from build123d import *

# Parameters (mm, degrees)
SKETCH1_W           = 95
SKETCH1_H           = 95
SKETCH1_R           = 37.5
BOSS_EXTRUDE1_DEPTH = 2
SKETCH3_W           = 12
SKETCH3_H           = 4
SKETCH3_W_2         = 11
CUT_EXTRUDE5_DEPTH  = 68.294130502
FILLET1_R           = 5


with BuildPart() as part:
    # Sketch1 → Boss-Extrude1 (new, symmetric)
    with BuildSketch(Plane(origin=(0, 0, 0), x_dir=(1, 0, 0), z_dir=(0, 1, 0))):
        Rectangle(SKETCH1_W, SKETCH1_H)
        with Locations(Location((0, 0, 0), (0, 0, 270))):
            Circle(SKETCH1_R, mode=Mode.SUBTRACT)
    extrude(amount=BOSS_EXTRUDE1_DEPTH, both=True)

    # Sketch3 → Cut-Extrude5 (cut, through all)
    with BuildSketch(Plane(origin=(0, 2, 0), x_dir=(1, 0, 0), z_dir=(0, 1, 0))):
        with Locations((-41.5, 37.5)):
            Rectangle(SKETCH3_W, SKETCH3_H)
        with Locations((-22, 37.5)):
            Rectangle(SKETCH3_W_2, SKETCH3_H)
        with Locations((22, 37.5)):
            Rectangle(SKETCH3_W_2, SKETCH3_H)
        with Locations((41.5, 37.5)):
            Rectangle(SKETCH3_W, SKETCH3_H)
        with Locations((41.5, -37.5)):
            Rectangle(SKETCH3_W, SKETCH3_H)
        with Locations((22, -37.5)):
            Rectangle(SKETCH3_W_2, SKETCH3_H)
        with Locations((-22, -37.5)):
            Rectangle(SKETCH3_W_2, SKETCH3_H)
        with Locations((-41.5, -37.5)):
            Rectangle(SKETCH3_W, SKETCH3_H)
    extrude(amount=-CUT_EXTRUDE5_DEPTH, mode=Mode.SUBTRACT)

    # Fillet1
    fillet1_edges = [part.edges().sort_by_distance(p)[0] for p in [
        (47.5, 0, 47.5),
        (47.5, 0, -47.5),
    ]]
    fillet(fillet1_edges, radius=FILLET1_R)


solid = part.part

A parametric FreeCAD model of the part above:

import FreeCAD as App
import Part
import Sketcher


def edges_at(feature, points):
    """Names of the edges that pass closest to the given points."""
    edges = feature.Shape.Edges
    near = lambda p: min(range(len(edges)), key=lambda i: edges[i].distToShape(Part.Vertex(*p))[0])
    return sorted({f"Edge{near(p) + 1}" for p in points})


def add_polygon(sketch, points):
    """Adds a closed chain of lines whose ends are joined by coincident constraints."""
    first, n = sketch.GeometryCount, len(points)
    for a, b in zip(points, points[1:] + points[:1]):
        sketch.addGeometry(Part.LineSegment(App.Vector(*a, 0), App.Vector(*b, 0)), False)
    for i in range(n):
        sketch.addConstraint(Sketcher.Constraint("Coincident", first + i, 2, first + (i + 1) % n, 1))

doc = App.newDocument("Part")
params = doc.addObject("Spreadsheet::Sheet", "Params")
for row, (alias, value) in enumerate([
    ("sketch1_diameter", "75 mm"),
    ("sketch1_width", "95 mm"),
    ("pad1_length", "4 mm"),
    ("sketch2_width", "12 mm"),
    ("sketch2_width2", "11 mm"),
    ("sketch2_height", "4 mm"),
    ("fillet_radius", "5 mm"),
], start=1):
    params.set(f"A{row}", alias)
    params.set(f"B{row}", "=" + value)
    params.setAlias(f"B{row}", alias)

body = doc.addObject("PartDesign::Body", "Body")

# Sketch on XZ plane
sketch1 = body.newObject("Sketcher::SketchObject", "Sketch")
sketch1.AttachmentSupport = (doc.getObject("XZ_Plane"), [""])
sketch1.MapMode = "FlatFace"
add_polygon(sketch1, [(-47.5, -47.5), (-47.5, 47.5), (47.5, 47.5), (47.5, -47.5)])  # lines 0-3
sketch1.addGeometry(Part.Circle(App.Vector(0, 0, 0), App.Vector(0, 0, 1), 37.5), False)  # 4
sketch1.addConstraint([
    Sketcher.Constraint("Vertical", 0),
    Sketcher.Constraint("Horizontal", 1),
    Sketcher.Constraint("Vertical", 2),
    Sketcher.Constraint("Horizontal", 3),
    Sketcher.Constraint("Coincident", 4, 3, -1, 1),
    Sketcher.Constraint("Symmetric", 0, 2, 2, 2, -1, 1),
    Sketcher.Constraint("Equal", 3, 0),
    Sketcher.Constraint("Diameter", 4, 75.0),
    Sketcher.Constraint("DistanceX", 1, 1, 1, 2, 95.0),
])
sketch1.setExpression("Constraints[11]", "Params.sketch1_diameter")
sketch1.setExpression("Constraints[12]", "Params.sketch1_width")
pad1 = body.newObject("PartDesign::Pad", "Pad")
pad1.Profile = sketch1
pad1.setExpression("Length", "Params.pad1_length")
pad1.Midplane = True

# Sketch on XZ plane
sketch2 = body.newObject("Sketcher::SketchObject", "Sketch001")
sketch2.AttachmentSupport = (doc.getObject("XZ_Plane"), [""])
sketch2.MapMode = "FlatFace"
sketch2.AttachmentOffset = App.Placement(App.Vector(0, 0, -2), App.Rotation())
add_polygon(sketch2, [(-47.5, -39.5), (-47.5, -35.5), (-35.5, -35.5), (-35.5, -39.5)])  # lines 0-3
add_polygon(sketch2, [(-27.5, -39.5), (-27.5, -35.5), (-16.5, -35.5), (-16.5, -39.5)])  # lines 4-7
add_polygon(sketch2, [(16.5, -39.5), (16.5, -35.5), (27.5, -35.5), (27.5, -39.5)])  # lines 8-11
add_polygon(sketch2, [(35.5, -39.5), (35.5, -35.5), (47.5, -35.5), (47.5, -39.5)])  # lines 12-15
add_polygon(sketch2, [(35.5, 35.5), (35.5, 39.5), (47.5, 39.5), (47.5, 35.5)])  # lines 16-19
add_polygon(sketch2, [(16.5, 35.5), (16.5, 39.5), (27.5, 39.5), (27.5, 35.5)])  # lines 20-23
add_polygon(sketch2, [(-27.5, 35.5), (-27.5, 39.5), (-16.5, 39.5), (-16.5, 35.5)])  # lines 24-27
add_polygon(sketch2, [(-47.5, 35.5), (-47.5, 39.5), (-35.5, 39.5), (-35.5, 35.5)])  # lines 28-31
sketch2.addConstraint([
    Sketcher.Constraint("Vertical", 0),
    Sketcher.Constraint("Horizontal", 1),
    Sketcher.Constraint("Vertical", 2),
    Sketcher.Constraint("Horizontal", 3),
    Sketcher.Constraint("Vertical", 4),
    Sketcher.Constraint("Horizontal", 5),
    Sketcher.Constraint("Vertical", 6),
    Sketcher.Constraint("Horizontal", 7),
    Sketcher.Constraint("Vertical", 8),
    Sketcher.Constraint("Horizontal", 9),
    Sketcher.Constraint("Vertical", 10),
    Sketcher.Constraint("Horizontal", 11),
    Sketcher.Constraint("Vertical", 12),
    Sketcher.Constraint("Horizontal", 13),
    Sketcher.Constraint("Vertical", 14),
    Sketcher.Constraint("Horizontal", 15),
    Sketcher.Constraint("Vertical", 16),
    Sketcher.Constraint("Horizontal", 17),
    Sketcher.Constraint("Vertical", 18),
    Sketcher.Constraint("Horizontal", 19),
    Sketcher.Constraint("Vertical", 20),
    Sketcher.Constraint("Horizontal", 21),
    Sketcher.Constraint("Vertical", 22),
    Sketcher.Constraint("Horizontal", 23),
    Sketcher.Constraint("Vertical", 24),
    Sketcher.Constraint("Horizontal", 25),
    Sketcher.Constraint("Vertical", 26),
    Sketcher.Constraint("Horizontal", 27),
    Sketcher.Constraint("Vertical", 28),
    Sketcher.Constraint("Horizontal", 29),
    Sketcher.Constraint("Vertical", 30),
    Sketcher.Constraint("Horizontal", 31),
    Sketcher.Constraint("Symmetric", 2, 2, 16, 2, -1, 1),
    Sketcher.Constraint("Symmetric", 0, 2, 18, 2, -1, 1),
    Sketcher.Constraint("Symmetric", 6, 2, 20, 2, -1, 1),
    Sketcher.Constraint("Symmetric", 4, 2, 22, 2, -1, 1),
    Sketcher.Constraint("Symmetric", 10, 2, 24, 2, -1, 1),
    Sketcher.Constraint("Symmetric", 8, 2, 26, 2, -1, 1),
    Sketcher.Constraint("Symmetric", 14, 2, 28, 2, -1, 1),
    Sketcher.Constraint("Symmetric", 12, 2, 30, 2, -1, 1),
    Sketcher.Constraint("Symmetric", 5, 2, 8, 2, -2),
    Sketcher.Constraint("Symmetric", 7, 2, 10, 2, -2),
    Sketcher.Constraint("Symmetric", 1, 2, 12, 2, -2),
    Sketcher.Constraint("Symmetric", 3, 2, 14, 2, -2),
    Sketcher.Constraint("Horizontal", 1, 2, 4, 2),
    Sketcher.Constraint("Horizontal", 3, 2, 6, 2),
    Sketcher.Constraint("DistanceX", 1, 1, 1, 2, 12.0),
    Sketcher.Constraint("DistanceX", 5, 1, 5, 2, 11.0),
    Sketcher.Constraint("DistanceY", 0, 1, 0, 2, 4.0),
    Sketcher.Constraint("DistanceX", 1, 2, 4, 2, 8.0),
    Sketcher.Constraint("DistanceX", 5, 2, 8, 2, 33.0),
    Sketcher.Constraint("DistanceY", 12, 2, 16, 2, 75.0),
])
sketch2.setExpression("Constraints[78]", "Params.sketch2_width")
sketch2.setExpression("Constraints[79]", "Params.sketch2_width2")
sketch2.setExpression("Constraints[80]", "Params.sketch2_height")
pocket1 = body.newObject("PartDesign::Pocket", "Pocket")
pocket1.Profile = sketch2
pocket1.Type = "ThroughAll"
pocket1.Reversed = True
doc.recompute()

fillet = body.newObject("PartDesign::Fillet", "Fillet")
fillet.Base = (pocket1, edges_at(pocket1, [(47.5, 0, 47.5), (47.5, 0, -47.5)]))
fillet.setExpression("Radius", "Params.fillet_radius")

doc.recompute()
